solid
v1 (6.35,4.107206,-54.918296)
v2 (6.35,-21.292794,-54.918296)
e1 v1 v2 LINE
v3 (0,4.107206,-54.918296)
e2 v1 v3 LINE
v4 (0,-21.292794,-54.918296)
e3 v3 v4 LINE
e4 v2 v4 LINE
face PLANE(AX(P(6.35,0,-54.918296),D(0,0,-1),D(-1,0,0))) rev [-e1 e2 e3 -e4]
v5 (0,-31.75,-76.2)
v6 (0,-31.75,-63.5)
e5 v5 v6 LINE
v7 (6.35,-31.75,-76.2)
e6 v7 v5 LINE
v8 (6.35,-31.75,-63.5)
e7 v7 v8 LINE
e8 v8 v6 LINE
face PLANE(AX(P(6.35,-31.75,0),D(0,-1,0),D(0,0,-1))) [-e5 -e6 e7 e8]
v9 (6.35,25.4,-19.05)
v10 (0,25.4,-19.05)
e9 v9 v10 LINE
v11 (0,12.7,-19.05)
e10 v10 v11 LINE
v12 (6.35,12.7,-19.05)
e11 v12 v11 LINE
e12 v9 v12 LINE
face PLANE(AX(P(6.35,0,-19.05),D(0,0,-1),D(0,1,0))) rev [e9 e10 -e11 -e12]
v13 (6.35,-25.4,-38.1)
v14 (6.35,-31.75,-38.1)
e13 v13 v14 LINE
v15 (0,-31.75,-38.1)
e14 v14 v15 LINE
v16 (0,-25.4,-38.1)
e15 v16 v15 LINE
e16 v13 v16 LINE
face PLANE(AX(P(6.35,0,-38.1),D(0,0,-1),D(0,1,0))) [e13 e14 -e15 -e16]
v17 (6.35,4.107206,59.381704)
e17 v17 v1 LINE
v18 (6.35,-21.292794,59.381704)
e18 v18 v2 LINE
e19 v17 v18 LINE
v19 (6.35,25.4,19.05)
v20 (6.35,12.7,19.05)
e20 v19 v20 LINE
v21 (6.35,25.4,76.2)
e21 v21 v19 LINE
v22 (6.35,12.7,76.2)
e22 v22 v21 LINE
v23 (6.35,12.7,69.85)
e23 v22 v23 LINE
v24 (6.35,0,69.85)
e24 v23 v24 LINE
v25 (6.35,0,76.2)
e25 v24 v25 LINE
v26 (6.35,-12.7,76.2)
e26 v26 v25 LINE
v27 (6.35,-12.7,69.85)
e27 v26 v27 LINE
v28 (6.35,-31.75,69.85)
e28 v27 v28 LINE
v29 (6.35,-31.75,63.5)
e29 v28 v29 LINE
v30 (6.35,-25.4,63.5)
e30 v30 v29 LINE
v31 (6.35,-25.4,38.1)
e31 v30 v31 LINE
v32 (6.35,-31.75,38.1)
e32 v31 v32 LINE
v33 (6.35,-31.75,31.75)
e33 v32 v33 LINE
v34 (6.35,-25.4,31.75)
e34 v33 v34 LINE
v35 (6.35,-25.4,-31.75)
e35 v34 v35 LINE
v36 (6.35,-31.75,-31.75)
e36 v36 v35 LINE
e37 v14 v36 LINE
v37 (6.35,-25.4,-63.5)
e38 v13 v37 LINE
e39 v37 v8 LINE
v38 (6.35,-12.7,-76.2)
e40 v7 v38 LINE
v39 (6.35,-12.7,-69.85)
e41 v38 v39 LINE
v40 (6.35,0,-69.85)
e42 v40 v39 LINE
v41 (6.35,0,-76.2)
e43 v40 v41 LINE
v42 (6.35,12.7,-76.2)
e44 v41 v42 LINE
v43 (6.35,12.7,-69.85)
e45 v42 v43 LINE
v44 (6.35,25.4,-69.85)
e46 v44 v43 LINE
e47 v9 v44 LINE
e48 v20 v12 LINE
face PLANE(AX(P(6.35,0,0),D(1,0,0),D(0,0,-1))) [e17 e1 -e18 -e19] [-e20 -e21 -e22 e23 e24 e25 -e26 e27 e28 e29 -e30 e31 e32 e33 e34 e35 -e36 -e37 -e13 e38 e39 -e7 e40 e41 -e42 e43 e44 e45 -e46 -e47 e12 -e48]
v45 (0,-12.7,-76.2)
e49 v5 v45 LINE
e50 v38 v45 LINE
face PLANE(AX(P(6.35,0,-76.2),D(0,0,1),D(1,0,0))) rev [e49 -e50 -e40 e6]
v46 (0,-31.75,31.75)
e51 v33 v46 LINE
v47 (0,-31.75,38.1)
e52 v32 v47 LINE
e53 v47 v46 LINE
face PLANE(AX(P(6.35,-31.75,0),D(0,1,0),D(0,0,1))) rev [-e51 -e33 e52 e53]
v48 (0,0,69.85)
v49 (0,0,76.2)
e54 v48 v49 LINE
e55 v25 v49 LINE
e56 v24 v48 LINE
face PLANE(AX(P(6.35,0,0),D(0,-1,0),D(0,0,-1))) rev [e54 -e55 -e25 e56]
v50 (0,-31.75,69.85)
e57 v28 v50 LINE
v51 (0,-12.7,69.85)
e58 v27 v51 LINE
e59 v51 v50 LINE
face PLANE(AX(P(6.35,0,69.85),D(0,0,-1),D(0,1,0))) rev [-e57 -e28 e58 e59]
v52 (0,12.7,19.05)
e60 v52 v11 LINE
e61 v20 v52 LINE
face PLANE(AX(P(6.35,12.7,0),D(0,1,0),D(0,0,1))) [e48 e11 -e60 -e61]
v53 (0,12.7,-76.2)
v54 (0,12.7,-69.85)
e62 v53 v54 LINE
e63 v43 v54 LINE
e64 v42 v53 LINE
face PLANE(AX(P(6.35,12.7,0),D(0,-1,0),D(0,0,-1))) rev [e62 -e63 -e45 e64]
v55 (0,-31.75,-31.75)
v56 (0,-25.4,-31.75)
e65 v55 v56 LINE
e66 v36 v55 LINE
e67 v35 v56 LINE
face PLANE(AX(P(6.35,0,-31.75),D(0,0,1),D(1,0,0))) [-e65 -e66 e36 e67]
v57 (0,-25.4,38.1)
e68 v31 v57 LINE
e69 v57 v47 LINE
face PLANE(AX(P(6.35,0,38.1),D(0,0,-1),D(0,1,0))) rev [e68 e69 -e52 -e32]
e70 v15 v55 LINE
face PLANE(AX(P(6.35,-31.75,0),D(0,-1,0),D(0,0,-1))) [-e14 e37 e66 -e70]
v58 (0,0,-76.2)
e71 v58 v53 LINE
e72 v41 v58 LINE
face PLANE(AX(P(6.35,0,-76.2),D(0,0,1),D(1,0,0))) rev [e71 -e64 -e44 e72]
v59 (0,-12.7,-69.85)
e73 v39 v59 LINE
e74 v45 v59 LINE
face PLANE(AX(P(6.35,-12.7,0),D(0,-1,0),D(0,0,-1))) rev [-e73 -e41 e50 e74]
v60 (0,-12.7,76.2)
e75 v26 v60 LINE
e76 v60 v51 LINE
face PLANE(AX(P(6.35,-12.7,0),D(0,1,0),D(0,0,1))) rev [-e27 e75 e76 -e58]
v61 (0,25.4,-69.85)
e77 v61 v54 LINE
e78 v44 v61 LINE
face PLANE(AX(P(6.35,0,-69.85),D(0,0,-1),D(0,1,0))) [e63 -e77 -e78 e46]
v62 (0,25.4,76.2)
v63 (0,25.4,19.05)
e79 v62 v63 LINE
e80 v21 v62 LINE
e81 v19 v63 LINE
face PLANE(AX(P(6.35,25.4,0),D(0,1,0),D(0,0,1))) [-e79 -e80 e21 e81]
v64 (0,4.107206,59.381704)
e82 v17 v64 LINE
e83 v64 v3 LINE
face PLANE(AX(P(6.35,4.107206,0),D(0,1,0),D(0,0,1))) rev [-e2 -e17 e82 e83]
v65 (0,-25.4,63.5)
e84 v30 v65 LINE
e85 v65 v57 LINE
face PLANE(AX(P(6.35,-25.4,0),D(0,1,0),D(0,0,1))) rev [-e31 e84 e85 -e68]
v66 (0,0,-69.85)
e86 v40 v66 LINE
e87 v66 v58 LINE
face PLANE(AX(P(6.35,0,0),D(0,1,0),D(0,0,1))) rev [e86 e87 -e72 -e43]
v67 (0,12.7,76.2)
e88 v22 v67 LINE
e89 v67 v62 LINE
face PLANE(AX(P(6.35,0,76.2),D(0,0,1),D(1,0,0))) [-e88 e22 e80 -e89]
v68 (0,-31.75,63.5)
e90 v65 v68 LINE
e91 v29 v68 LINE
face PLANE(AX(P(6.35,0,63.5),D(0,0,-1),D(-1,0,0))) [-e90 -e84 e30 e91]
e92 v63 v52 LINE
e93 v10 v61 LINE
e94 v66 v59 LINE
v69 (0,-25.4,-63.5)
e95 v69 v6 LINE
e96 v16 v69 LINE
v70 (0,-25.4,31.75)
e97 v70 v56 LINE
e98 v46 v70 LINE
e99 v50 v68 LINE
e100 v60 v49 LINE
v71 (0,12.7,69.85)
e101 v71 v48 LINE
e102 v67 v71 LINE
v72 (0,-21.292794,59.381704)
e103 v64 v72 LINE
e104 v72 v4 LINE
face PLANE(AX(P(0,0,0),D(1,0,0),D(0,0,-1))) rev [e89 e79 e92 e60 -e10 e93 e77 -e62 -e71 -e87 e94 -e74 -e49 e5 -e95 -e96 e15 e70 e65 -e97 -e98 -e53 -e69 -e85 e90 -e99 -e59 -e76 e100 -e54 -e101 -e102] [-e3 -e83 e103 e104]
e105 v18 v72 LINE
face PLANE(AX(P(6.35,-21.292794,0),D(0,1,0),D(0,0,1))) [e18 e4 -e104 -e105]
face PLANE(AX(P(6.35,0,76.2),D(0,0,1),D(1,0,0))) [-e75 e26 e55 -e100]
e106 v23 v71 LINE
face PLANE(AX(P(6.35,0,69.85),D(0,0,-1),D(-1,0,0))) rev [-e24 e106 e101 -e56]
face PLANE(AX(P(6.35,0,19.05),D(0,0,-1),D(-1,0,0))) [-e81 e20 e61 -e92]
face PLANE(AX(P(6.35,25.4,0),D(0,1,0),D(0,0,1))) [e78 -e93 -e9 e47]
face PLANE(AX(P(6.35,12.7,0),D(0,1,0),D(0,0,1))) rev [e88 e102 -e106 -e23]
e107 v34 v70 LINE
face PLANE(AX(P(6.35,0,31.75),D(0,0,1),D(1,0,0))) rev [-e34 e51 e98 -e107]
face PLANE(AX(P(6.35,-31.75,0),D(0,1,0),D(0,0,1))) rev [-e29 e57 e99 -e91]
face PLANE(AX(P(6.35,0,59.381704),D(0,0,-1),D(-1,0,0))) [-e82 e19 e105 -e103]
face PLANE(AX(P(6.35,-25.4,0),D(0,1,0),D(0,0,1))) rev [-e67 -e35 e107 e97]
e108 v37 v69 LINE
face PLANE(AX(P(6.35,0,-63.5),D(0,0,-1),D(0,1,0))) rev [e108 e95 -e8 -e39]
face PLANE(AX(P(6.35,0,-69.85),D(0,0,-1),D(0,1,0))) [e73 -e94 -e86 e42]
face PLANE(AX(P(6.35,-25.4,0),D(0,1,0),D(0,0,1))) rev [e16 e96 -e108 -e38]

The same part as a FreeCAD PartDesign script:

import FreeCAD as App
import Part
import Sketcher

V = App.Vector
Q = App.Units.Quantity


def add_polygon(sketch, points):
    """Adds a closed chain of lines whose ends are joined by coincident constraints."""
    first, n = sketch.GeometryCount, len(points)
    for a, b in zip(points, points[1:] + points[:1]):
        sketch.addGeometry(Part.LineSegment(App.Vector(*a, 0), App.Vector(*b, 0)), False)
    for i in range(n):
        sketch.addConstraint(Sketcher.Constraint("Coincident", first + i, 2, first + (i + 1) % n, 1))

doc = App.newDocument("Part")
params = doc.addObject("Spreadsheet::Sheet", "Params")
for row, (alias, value) in enumerate([
    ("sketch1_width", "1 in"),
    ("sketch1_height", "2 in"),
    ("sketch1_width2", "0.5 in"),
    ("sketch1_height2", "2.5 in"),
    ("sketch1_height3", "1.5 in"),
    ("pad1_length", "0.25 in"),
    ("sketch2_width", "0.25 in"),
    ("pad2_length", "0.25 in"),
], start=1):
    params.set(f"A{row}", alias)
    params.set(f"B{row}", "=" + value)
    params.setAlias(f"B{row}", alias)

body = doc.addObject("PartDesign::Body", "Body")

# Sketch on YZ plane
sketch1 = body.newObject("Sketcher::SketchObject", "Sketch")
sketch1.AttachmentSupport = (doc.getObject("YZ_Plane"), [""])
sketch1.MapMode = "FlatFace"
add_polygon(sketch1, [(25, 76), (13, 76), (13, 70), (0, 70), (0, 76), (-13, 76), (-13, 70), (-32, 70), (-32, 64), (-25, 64), (-25, 38), (-32, 38), (-32, 32), (-25, 32), (-25, -32), (-32, -32), (-32, -38), (-25, -38), (-25, -64), (-32, -64), (-32, -70), (-25, -70), (-25, -76), (-13, -76), (-13, -70), (0, -70), (0, -76), (13, -76), (13, -70), (25, -70), (25, -19), (13, -19), (13, 19), (25, 19)])  # lines 0-33
add_polygon(sketch1, [(-21, -55), (-21, 59), (4, 59), (4, -55)])  # lines 34-37
sketch1.addConstraint(Sketcher.Constraint("Horizontal", 0))
sketch1.addConstraint(Sketcher.Constraint("Vertical", 1))
sketch1.addConstraint(Sketcher.Constraint("Horizontal", 2))
sketch1.addConstraint(Sketcher.Constraint("Vertical", 3))
sketch1.addConstraint(Sketcher.Constraint("Horizontal", 4))
sketch1.addConstraint(Sketcher.Constraint("Vertical", 5))
sketch1.addConstraint(Sketcher.Constraint("Horizontal", 6))
sketch1.addConstraint(Sketcher.Constraint("Vertical", 7))
sketch1.addConstraint(Sketcher.Constraint("Horizontal", 8))
sketch1.addConstraint(Sketcher.Constraint("Vertical", 9))
sketch1.addConstraint(Sketcher.Constraint("Horizontal", 10))
sketch1.addConstraint(Sketcher.Constraint("Vertical", 11))
sketch1.addConstraint(Sketcher.Constraint("Horizontal", 12))
sketch1.addConstraint(Sketcher.Constraint("Vertical", 13))
sketch1.addConstraint(Sketcher.Constraint("Horizontal", 14))
sketch1.addConstraint(Sketcher.Constraint("Vertical", 15))
sketch1.addConstraint(Sketcher.Constraint("Horizontal", 16))
sketch1.addConstraint(Sketcher.Constraint("Vertical", 17))
sketch1.addConstraint(Sketcher.Constraint("Horizontal", 18))
sketch1.addConstraint(Sketcher.Constraint("Vertical", 19))
sketch1.addConstraint(Sketcher.Constraint("Horizontal", 20))
sketch1.addConstraint(Sketcher.Constraint("Vertical", 21))
sketch1.addConstraint(Sketcher.Constraint("Horizontal", 22))
sketch1.addConstraint(Sketcher.Constraint("Vertical", 23))
sketch1.addConstraint(Sketcher.Constraint("Horizontal", 24))
sketch1.addConstraint(Sketcher.Constraint("Vertical", 25))
sketch1.addConstraint(Sketcher.Constraint("Horizontal", 26))
sketch1.addConstraint(Sketcher.Constraint("Vertical", 27))
sketch1.addConstraint(Sketcher.Constraint("Horizontal", 28))
sketch1.addConstraint(Sketcher.Constraint("Vertical", 29))
sketch1.addConstraint(Sketcher.Constraint("Horizontal", 30))
sketch1.addConstraint(Sketcher.Constraint("Vertical", 31))
sketch1.addConstraint(Sketcher.Constraint("Horizontal", 32))
sketch1.addConstraint(Sketcher.Constraint("Vertical", 33))
sketch1.addConstraint(Sketcher.Constraint("Vertical", 34))
sketch1.addConstraint(Sketcher.Constraint("Horizontal", 35))
sketch1.addConstraint(Sketcher.Constraint("Vertical", 36))
sketch1.addConstraint(Sketcher.Constraint("Horizontal", 37))
sketch1.addConstraint(Sketcher.Constraint("Symmetric", 0, 2, 22, 2, -1, 1))
sketch1.addConstraint(Sketcher.Constraint("Symmetric", 2, 2, 24, 2, -1, 1))
sketch1.addConstraint(Sketcher.Constraint("Symmetric", 4, 2, 26, 2, -1, 1))
sketch1.addConstraint(Sketcher.Constraint("Symmetric", 0, 2, 4, 2, -2))
sketch1.addConstraint(Sketcher.Constraint("Symmetric", 20, 2, 28, 2, -2))
sketch1.addConstraint(Sketcher.Constraint("Symmetric", 11, 2, 14, 2, -1))
sketch1.addConstraint(Sketcher.Constraint("Symmetric", 9, 2, 16, 2, -1))
sketch1.addConstraint(Sketcher.Constraint("Symmetric", 7, 2, 18, 2, -1))
sketch1.addConstraint(Sketcher.Constraint("Symmetric", 29, 2, 32, 2, -1))
sketch1.addConstraint(Sketcher.Constraint("PointOnObject", 2, 2, -2))
sketch1.addConstraint(Sketcher.Constraint("Horizontal", 2, 2, 5, 2))
sketch1.addConstraint(Sketcher.Constraint("Horizontal", 20, 2, 23, 2))
sketch1.addConstraint(Sketcher.Constraint("Vertical", 7, 2, 10, 2))
sketch1.addConstraint(Sketcher.Constraint("Vertical", 9, 2, 12, 2))
sketch1.addConstraint(Sketcher.Constraint("Vertical", 17, 2, 20, 2))
sketch1.addConstraint(Sketcher.Constraint("Vertical", 27, 2, 30, 2))
sketch1.addConstraint(Sketcher.Constraint("Equal", 0, 2))
sketch1.addConstraint(Sketcher.Constraint("Equal", 20, 1))
sketch1.addConstraint(Sketcher.Constraint("Equal", 5, 7))
sketch1.addConstraint(Sketcher.Constraint("Equal", 37, 9))
sketch1.addConstraint(Sketcher.Constraint("Equal", 7, 11))
sketch1.addConstraint(Sketcher.Constraint("DistanceX", 35, 1, 35, 2, Q("1 in")))
sketch1.addConstraint(Sketcher.Constraint("DistanceY", 29, 1, 29, 2, Q("2 in")))
sketch1.addConstraint(Sketcher.Constraint("DistanceX", 0, 2, 0, 1, Q("0.5 in")))
sketch1.addConstraint(Sketcher.Constraint("DistanceY", 13, 2, 13, 1, Q("2.5 in")))
sketch1.addConstraint(Sketcher.Constraint("DistanceY", 31, 1, 31, 2, Q("1.5 in")))
sketch1.addConstraint(Sketcher.Constraint("DistanceY", 34, 1, 34, 2, Q("4.5 in")))
sketch1.addConstraint(Sketcher.Constraint("DistanceX", 34, 2, -1, 1, 21.292794))
sketch1.addConstraint(Sketcher.Constraint("DistanceY", -1, 1, 34, 2, 59.381704))
sketch1.setExpression("Constraints[97]", "Params.sketch1_width")
sketch1.setExpression("Constraints[98]", "Params.sketch1_height")
sketch1.setExpression("Constraints[99]", "Params.sketch1_width2")
sketch1.setExpression("Constraints[100]", "Params.sketch1_height2")
sketch1.setExpression("Constraints[101]", "Params.sketch1_height3")
pad1 = body.newObject("PartDesign::Pad", "Pad")
pad1.Profile = sketch1
pad1.setExpression("Length", "Params.pad1_length")

# Sketch on YZ plane
sketch2 = body.newObject("Sketcher::SketchObject", "Sketch001")
sketch2.AttachmentSupport = (doc.getObject("YZ_Plane"), [""])
sketch2.MapMode = "FlatFace"
add_polygon(sketch2, [(-25, -70), (-32, -70), (-32, -76), (-25, -76)])  # lines 0-3
sketch2.addConstraint(Sketcher.Constraint("Horizontal", 0))
sketch2.addConstraint(Sketcher.Constraint("Vertical", 1))
sketch2.addConstraint(Sketcher.Constraint("Horizontal", 2))
sketch2.addConstraint(Sketcher.Constraint("Vertical", 3))
sketch2.addConstraint(Sketcher.Constraint("Equal", 2, 1))
sketch2.addConstraint(Sketcher.Constraint("DistanceY", 1, 2, -1, 1, Q("3 in")))
sketch2.addConstraint(Sketcher.Constraint("DistanceX", 2, 2, -1, 1, Q("1 in")))
sketch2.addConstraint(Sketcher.Constraint("DistanceX", 0, 2, 0, 1, Q("0.25 in")))
sketch2.setExpression("Constraints[11]", "Params.sketch2_width")
pad2 = body.newObject("PartDesign::Pad", "Pad001")
pad2.Profile = sketch2
pad2.setExpression("Length", "Params.pad2_length")

doc.recompute()
